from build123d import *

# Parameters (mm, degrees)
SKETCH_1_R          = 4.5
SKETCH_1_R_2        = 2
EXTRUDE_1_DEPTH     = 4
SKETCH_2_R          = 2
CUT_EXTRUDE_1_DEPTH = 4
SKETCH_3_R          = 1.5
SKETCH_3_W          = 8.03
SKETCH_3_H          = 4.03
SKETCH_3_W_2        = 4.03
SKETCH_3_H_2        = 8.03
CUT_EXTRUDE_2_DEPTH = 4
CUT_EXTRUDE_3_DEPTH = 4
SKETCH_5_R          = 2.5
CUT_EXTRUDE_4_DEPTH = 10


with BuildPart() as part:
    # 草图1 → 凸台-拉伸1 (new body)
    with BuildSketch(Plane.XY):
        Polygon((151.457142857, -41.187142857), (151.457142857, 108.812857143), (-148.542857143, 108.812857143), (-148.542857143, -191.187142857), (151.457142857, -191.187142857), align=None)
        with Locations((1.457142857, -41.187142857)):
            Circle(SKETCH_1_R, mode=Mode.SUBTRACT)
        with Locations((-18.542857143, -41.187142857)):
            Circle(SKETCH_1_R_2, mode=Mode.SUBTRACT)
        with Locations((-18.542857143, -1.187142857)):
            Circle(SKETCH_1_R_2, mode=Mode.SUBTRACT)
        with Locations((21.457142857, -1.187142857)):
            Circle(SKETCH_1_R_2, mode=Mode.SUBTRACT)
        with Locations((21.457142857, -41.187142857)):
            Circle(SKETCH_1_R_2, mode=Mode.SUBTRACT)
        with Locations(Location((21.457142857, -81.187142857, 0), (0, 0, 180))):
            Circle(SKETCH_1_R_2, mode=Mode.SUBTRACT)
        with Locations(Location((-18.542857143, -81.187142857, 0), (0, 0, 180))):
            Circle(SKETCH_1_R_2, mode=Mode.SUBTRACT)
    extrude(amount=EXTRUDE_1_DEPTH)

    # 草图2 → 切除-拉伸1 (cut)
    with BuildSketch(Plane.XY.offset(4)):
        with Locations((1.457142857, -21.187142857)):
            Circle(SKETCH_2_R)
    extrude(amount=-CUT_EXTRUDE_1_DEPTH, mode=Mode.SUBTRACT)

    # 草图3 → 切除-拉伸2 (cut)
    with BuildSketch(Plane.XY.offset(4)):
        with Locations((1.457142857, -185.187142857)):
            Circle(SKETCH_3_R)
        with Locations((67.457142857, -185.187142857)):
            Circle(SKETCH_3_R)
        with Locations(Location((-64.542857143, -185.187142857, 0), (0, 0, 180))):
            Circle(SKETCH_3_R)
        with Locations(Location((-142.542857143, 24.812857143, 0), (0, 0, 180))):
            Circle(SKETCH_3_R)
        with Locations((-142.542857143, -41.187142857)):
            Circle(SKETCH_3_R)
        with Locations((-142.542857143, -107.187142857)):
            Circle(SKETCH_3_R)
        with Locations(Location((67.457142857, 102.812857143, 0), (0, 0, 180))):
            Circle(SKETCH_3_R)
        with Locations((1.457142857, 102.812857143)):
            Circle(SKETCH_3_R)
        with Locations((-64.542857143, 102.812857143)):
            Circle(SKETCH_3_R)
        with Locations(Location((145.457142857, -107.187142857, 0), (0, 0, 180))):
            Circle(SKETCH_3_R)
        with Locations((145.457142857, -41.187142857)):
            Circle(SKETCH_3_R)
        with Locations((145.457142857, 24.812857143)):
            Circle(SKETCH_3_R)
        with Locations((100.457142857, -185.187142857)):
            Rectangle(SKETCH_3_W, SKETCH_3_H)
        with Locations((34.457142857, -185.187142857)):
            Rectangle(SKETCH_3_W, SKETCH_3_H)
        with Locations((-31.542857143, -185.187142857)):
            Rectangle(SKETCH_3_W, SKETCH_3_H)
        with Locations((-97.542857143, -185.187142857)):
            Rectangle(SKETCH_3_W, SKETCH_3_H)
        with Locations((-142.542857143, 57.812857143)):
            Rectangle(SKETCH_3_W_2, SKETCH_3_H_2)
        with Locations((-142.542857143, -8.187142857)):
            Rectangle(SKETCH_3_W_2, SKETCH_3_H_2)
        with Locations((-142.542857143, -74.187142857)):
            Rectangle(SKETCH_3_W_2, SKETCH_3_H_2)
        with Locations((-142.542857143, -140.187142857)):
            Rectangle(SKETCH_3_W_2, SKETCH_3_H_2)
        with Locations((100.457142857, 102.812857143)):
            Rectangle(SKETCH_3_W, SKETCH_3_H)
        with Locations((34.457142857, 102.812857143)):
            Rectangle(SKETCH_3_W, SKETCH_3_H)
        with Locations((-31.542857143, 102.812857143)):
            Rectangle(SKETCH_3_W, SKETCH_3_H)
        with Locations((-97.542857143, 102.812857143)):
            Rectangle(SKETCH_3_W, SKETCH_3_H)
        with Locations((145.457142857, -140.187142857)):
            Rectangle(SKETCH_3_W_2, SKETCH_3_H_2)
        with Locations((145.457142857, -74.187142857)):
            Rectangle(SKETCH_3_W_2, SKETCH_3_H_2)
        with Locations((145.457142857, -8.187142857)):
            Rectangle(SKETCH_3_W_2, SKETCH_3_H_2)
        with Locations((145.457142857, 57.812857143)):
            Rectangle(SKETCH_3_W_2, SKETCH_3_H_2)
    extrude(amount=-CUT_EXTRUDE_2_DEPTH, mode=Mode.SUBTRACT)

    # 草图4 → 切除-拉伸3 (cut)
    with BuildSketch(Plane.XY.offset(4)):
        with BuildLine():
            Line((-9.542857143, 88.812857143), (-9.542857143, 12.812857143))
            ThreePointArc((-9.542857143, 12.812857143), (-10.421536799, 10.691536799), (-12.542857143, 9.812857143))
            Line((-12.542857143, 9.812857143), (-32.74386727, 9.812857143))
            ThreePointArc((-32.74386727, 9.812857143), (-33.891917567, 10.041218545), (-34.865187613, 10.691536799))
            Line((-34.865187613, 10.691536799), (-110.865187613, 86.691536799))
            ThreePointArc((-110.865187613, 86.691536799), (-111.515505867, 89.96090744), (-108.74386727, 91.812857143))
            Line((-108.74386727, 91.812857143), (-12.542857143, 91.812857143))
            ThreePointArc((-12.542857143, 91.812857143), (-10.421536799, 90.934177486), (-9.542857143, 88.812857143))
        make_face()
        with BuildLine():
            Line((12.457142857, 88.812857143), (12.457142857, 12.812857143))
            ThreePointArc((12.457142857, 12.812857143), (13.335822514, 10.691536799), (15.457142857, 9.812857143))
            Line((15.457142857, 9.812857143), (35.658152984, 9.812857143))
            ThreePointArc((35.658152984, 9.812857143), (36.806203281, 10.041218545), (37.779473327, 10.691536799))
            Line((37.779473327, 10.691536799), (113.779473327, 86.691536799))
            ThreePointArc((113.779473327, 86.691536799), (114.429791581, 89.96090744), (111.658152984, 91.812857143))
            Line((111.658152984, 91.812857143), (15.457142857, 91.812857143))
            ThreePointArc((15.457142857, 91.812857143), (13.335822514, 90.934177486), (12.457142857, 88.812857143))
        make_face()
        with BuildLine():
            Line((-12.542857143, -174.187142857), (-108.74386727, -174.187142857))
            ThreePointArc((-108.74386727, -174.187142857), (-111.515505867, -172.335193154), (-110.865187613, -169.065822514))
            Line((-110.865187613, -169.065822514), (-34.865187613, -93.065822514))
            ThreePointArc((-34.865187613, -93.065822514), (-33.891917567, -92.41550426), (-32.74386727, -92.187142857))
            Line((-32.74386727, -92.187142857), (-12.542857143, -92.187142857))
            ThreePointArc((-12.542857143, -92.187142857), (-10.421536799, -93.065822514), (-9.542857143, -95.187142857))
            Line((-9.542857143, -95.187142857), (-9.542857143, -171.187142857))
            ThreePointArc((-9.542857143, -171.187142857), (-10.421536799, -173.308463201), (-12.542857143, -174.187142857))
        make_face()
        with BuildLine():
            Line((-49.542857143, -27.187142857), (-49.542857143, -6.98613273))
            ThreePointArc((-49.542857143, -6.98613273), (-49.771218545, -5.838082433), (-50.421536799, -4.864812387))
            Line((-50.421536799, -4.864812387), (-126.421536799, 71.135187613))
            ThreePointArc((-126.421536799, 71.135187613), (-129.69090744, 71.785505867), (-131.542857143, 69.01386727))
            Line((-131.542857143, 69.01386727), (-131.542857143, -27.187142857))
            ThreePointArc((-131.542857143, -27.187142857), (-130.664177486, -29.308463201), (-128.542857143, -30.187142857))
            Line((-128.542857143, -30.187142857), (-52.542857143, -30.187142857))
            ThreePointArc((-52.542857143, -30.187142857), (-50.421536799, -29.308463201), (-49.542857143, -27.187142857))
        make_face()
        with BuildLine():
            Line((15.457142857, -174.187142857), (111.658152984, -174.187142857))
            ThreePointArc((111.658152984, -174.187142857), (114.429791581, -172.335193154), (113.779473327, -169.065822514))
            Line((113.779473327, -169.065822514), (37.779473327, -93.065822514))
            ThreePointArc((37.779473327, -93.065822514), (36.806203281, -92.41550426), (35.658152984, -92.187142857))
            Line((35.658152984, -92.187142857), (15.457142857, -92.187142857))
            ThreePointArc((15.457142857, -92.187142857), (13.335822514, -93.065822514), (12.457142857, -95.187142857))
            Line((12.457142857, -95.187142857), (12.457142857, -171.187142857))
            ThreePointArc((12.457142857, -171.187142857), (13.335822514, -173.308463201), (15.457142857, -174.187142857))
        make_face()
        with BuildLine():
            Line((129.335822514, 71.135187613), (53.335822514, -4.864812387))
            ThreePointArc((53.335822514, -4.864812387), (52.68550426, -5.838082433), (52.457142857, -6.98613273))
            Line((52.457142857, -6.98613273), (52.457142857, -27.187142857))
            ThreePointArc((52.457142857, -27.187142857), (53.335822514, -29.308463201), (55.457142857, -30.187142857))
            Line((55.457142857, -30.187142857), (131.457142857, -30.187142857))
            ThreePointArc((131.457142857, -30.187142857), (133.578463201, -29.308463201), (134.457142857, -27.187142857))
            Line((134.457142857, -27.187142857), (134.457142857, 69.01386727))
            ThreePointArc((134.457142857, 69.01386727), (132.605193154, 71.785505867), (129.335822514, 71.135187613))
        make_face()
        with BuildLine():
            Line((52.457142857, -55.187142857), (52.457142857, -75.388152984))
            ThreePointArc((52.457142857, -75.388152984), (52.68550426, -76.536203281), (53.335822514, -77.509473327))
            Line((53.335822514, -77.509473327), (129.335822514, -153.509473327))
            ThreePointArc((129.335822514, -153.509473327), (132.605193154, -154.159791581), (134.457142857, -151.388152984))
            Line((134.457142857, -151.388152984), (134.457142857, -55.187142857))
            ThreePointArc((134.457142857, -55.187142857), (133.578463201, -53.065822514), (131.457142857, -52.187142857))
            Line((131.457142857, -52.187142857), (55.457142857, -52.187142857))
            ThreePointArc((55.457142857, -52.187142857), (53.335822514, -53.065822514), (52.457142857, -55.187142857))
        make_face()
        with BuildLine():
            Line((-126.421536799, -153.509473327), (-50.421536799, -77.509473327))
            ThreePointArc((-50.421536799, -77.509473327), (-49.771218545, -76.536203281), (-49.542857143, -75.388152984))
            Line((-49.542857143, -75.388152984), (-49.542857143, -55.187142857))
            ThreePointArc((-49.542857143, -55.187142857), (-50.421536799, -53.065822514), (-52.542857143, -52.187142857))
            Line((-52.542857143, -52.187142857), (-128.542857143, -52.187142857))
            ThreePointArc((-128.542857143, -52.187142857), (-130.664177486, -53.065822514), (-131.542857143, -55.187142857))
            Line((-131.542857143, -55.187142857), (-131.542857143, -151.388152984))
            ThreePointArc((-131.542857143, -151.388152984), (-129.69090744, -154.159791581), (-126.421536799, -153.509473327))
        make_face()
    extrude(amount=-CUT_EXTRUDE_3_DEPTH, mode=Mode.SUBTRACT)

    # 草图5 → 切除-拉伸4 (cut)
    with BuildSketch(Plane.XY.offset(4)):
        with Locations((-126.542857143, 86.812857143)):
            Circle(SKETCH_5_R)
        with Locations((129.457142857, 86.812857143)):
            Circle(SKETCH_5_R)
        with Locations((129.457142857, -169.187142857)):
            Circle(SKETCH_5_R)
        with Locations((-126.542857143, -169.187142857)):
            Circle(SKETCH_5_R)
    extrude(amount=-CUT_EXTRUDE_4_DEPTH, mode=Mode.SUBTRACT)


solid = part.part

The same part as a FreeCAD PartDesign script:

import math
import FreeCAD as App
import Part
import Sketcher

doc = App.newDocument("Part")
params = doc.addObject("Spreadsheet::Sheet", "Params")
for row, (alias, value) in enumerate([
    ("sketch1_diameter", "4 mm"),
    ("sketch1_diameter2", "9 mm"),
    ("sketch1_width", "300 mm"),
    ("pad1_length", "4 mm"),
    ("sketch2_diameter", "4 mm"),
    ("pocket1_length", "4 mm"),
    ("sketch3_diameter", "3 mm"),
    ("sketch3_width", "8.03 mm"),
    ("sketch3_width2", "4.03 mm"),
    ("pocket2_length", "4 mm"),
    ("sketch4_radius", "3 mm"),
    ("sketch4_width", "76 mm"),
    ("pocket3_length", "4 mm"),
    ("sketch5_diameter", "5 mm"),
    ("pocket4_length", "10 mm"),
], start=1):
    params.set(f"A{row}", alias)
    params.set(f"B{row}", "=" + value)
    params.setAlias(f"B{row}", alias)

body = doc.addObject("PartDesign::Body", "Body")

# Sketch on XY plane
sketch1 = body.newObject("Sketcher::SketchObject", "Sketch")
sketch1.AttachmentSupport = (doc.getObject("XY_Plane"), [""])
sketch1.MapMode = "FlatFace"
sketch1.addGeometry([
    Part.LineSegment(App.Vector(151.5, 108.8, 0), App.Vector(-148.5, 108.8, 0)),  # 0
    Part.LineSegment(App.Vector(-148.5, 108.8, 0), App.Vector(-148.5, -191.2, 0)),  # 1
    Part.LineSegment(App.Vector(-148.5, -191.2, 0), App.Vector(151.5, -191.2, 0)),  # 2
    Part.LineSegment(App.Vector(151.5, -191.2, 0), App.Vector(151.5, 108.8, 0)),  # 3
    Part.Circle(App.Vector(-18.5, -81.2, 0), App.Vector(0, 0, 1), 2),  # 4
    Part.Circle(App.Vector(21.5, -81.2, 0), App.Vector(0, 0, 1), 2),  # 5
    Part.Circle(App.Vector(-18.5, -41.2, 0), App.Vector(0, 0, 1), 2),  # 6
    Part.Circle(App.Vector(1.5, -41.2, 0), App.Vector(0, 0, 1), 4.5),  # 7
    Part.Circle(App.Vector(-18.5, -1.2, 0), App.Vector(0, 0, 1), 2),  # 8
    Part.Circle(App.Vector(21.5, -41.2, 0), App.Vector(0, 0, 1), 2),  # 9
    Part.Circle(App.Vector(21.5, -1.2, 0), App.Vector(0, 0, 1), 2),  # 10
], False)
sketch1.addConstraint([
    Sketcher.Constraint("Coincident", 0, 2, 1, 1),
    Sketcher.Constraint("Coincident", 1, 2, 2, 1),
    Sketcher.Constraint("Coincident", 2, 2, 3, 1),
    Sketcher.Constraint("Coincident", 3, 2, 0, 1),
    Sketcher.Constraint("Horizontal", 0),
    Sketcher.Constraint("Vertical", 1),
    Sketcher.Constraint("Horizontal", 2),
    Sketcher.Constraint("Vertical", 3),
    Sketcher.Constraint("Equal", 4, 5),
    Sketcher.Constraint("Equal", 5, 6),
    Sketcher.Constraint("Equal", 6, 8),
    Sketcher.Constraint("Equal", 8, 9),
    Sketcher.Constraint("Equal", 9, 10),
    Sketcher.Constraint("Horizontal", 4, 3, 5, 3),
    Sketcher.Constraint("Horizontal", 6, 3, 7, 3),
    Sketcher.Constraint("Horizontal", 7, 3, 9, 3),
    Sketcher.Constraint("Horizontal", 8, 3, 10, 3),
    Sketcher.Constraint("Vertical", 4, 3, 6, 3),
    Sketcher.Constraint("Vertical", 6, 3, 8, 3),
    Sketcher.Constraint("Vertical", 5, 3, 9, 3),
    Sketcher.Constraint("Vertical", 9, 3, 10, 3),
    Sketcher.Constraint("Equal", 2, 1),
    Sketcher.Constraint("Diameter", 4, 4.0),
    Sketcher.Constraint("Diameter", 7, 9.0),
    Sketcher.Constraint("DistanceX", 0, 2, 0, 1, 300.0),
    Sketcher.Constraint("DistanceX", 4, 3, 5, 3, 40.0),
    Sketcher.Constraint("DistanceY", 4, 3, 6, 3, 40.0),
    Sketcher.Constraint("DistanceX", 6, 3, 7, 3, 20.0),
    Sketcher.Constraint("DistanceY", 6, 3, 8, 3, 40.0),
    Sketcher.Constraint("DistanceX", 0, 2, 8, 3, 130.0),
    Sketcher.Constraint("DistanceY", 8, 3, 0, 2, 110.0),
    Sketcher.Constraint("DistanceX", 4, 3, -1, 1, 18.542857),
    Sketcher.Constraint("DistanceY", 4, 3, -1, 1, 81.187143),
])
sketch1.setExpression("Constraints[22]", "Params.sketch1_diameter")
sketch1.setExpression("Constraints[23]", "Params.sketch1_diameter2")
sketch1.setExpression("Constraints[24]", "Params.sketch1_width")
pad1 = body.newObject("PartDesign::Pad", "Pad")
pad1.Profile = sketch1
pad1.setExpression("Length", "Params.pad1_length")

# Sketch on XY plane
sketch2 = body.newObject("Sketcher::SketchObject", "Sketch001")
sketch2.AttachmentSupport = (doc.getObject("XY_Plane"), [""])
sketch2.MapMode = "FlatFace"
sketch2.AttachmentOffset = App.Placement(App.Vector(0, 0, 4), App.Rotation())
sketch2.addGeometry(Part.Circle(App.Vector(1.5, -21.2, 0), App.Vector(0, 0, 1), 2), False)
sketch2.addConstraint([
    Sketcher.Constraint("Diameter", 0, 4.0),
    Sketcher.Constraint("DistanceX", -1, 1, 0, 3, 1.457143),
    Sketcher.Constraint("DistanceY", 0, 3, -1, 1, 21.187143),
])
sketch2.setExpression("Constraints[0]", "Params.sketch2_diameter")
pocket1 = body.newObject("PartDesign::Pocket", "Pocket")
pocket1.Profile = sketch2
pocket1.setExpression("Length", "Params.pocket1_length")

# Sketch on XY plane
sketch3 = body.newObject("Sketcher::SketchObject", "Sketch002")
sketch3.AttachmentSupport = (doc.getObject("XY_Plane"), [""])
sketch3.MapMode = "FlatFace"
sketch3.AttachmentOffset = App.Placement(App.Vector(0, 0, 4), App.Rotation())
sketch3.addGeometry([
    Part.Circle(App.Vector(1.5, -185.2, 0), App.Vector(0, 0, 1), 1.5),  # 0
    Part.Circle(App.Vector(67.5, -185.2, 0), App.Vector(0, 0, 1), 1.5),  # 1
    Part.Circle(App.Vector(-64.5, -185.2, 0), App.Vector(0, 0, 1), 1.5),  # 2
    Part.Circle(App.Vector(-142.5, 24.8, 0), App.Vector(0, 0, 1), 1.5),  # 3
    Part.Circle(App.Vector(-142.5, -41.2, 0), App.Vector(0, 0, 1), 1.5),  # 4
    Part.Circle(App.Vector(-142.5, -107.2, 0), App.Vector(0, 0, 1), 1.5),  # 5
    Part.Circle(App.Vector(67.5, 102.8, 0), App.Vector(0, 0, 1), 1.5),  # 6
    Part.Circle(App.Vector(1.5, 102.8, 0), App.Vector(0, 0, 1), 1.5),  # 7
    Part.Circle(App.Vector(-64.5, 102.8, 0), App.Vector(0, 0, 1), 1.5),  # 8
    Part.Circle(App.Vector(145.5, -107.2, 0), App.Vector(0, 0, 1), 1.5),  # 9
    Part.Circle(App.Vector(145.5, -41.2, 0), App.Vector(0, 0, 1), 1.5),  # 10
    Part.Circle(App.Vector(145.5, 24.8, 0), App.Vector(0, 0, 1), 1.5),  # 11
    Part.LineSegment(App.Vector(96.4, -183.2, 0), App.Vector(96.4, -187.2, 0)),  # 12
    Part.LineSegment(App.Vector(96.4, -187.2, 0), App.Vector(104.5, -187.2, 0)),  # 13
    Part.LineSegment(App.Vector(104.5, -187.2, 0), App.Vector(104.5, -183.2, 0)),  # 14
    Part.LineSegment(App.Vector(104.5, -183.2, 0), App.Vector(96.4, -183.2, 0)),  # 15
    Part.LineSegment(App.Vector(30.4, -183.2, 0), App.Vector(30.4, -187.2, 0)),  # 16
    Part.LineSegment(App.Vector(30.4, -187.2, 0), App.Vector(38.5, -187.2, 0)),  # 17
    Part.LineSegment(App.Vector(38.5, -187.2, 0), App.Vector(38.5, -183.2, 0)),  # 18
    Part.LineSegment(App.Vector(38.5, -183.2, 0), App.Vector(30.4, -183.2, 0)),  # 19
    Part.LineSegment(App.Vector(-35.6, -183.2, 0), App.Vector(-35.6, -187.2, 0)),  # 20
    Part.LineSegment(App.Vector(-35.6, -187.2, 0), App.Vector(-27.5, -187.2, 0)),  # 21
    Part.LineSegment(App.Vector(-27.5, -187.2, 0), App.Vector(-27.5, -183.2, 0)),  # 22
    Part.LineSegment(App.Vector(-27.5, -183.2, 0), App.Vector(-35.6, -183.2, 0)),  # 23
    Part.LineSegment(App.Vector(-101.6, -183.2, 0), App.Vector(-101.6, -187.2, 0)),  # 24
    Part.LineSegment(App.Vector(-101.6, -187.2, 0), App.Vector(-93.5, -187.2, 0)),  # 25
    Part.LineSegment(App.Vector(-93.5, -187.2, 0), App.Vector(-93.5, -183.2, 0)),  # 26
    Part.LineSegment(App.Vector(-93.5, -183.2, 0), App.Vector(-101.6, -183.2, 0)),  # 27
    Part.LineSegment(App.Vector(-144.6, 61.8, 0), App.Vector(-144.6, 53.8, 0)),  # 28
    Part.LineSegment(App.Vector(-144.6, 53.8, 0), App.Vector(-140.5, 53.8, 0)),  # 29
    Part.LineSegment(App.Vector(-140.5, 53.8, 0), App.Vector(-140.5, 61.8, 0)),  # 30
    Part.LineSegment(App.Vector(-140.5, 61.8, 0), App.Vector(-144.6, 61.8, 0)),  # 31
    Part.LineSegment(App.Vector(-144.6, -4.2, 0), App.Vector(-144.6, -12.2, 0)),  # 32
    Part.LineSegment(App.Vector(-144.6, -12.2, 0), App.Vector(-140.5, -12.2, 0)),  # 33
    Part.LineSegment(App.Vector(-140.5, -12.2, 0), App.Vector(-140.5, -4.2, 0)),  # 34
    Part.LineSegment(App.Vector(-140.5, -4.2, 0), App.Vector(-144.6, -4.2, 0)),  # 35
    Part.LineSegment(App.Vector(-144.6, -70.2, 0), App.Vector(-144.6, -78.2, 0)),  # 36
    Part.LineSegment(App.Vector(-144.6, -78.2, 0), App.Vector(-140.5, -78.2, 0)),  # 37
    Part.LineSegment(App.Vector(-140.5, -78.2, 0), App.Vector(-140.5, -70.2, 0)),  # 38
    Part.LineSegment(App.Vector(-140.5, -70.2, 0), App.Vector(-144.6, -70.2, 0)),  # 39
    Part.LineSegment(App.Vector(-144.6, -136.2, 0), App.Vector(-144.6, -144.2, 0)),  # 40
    Part.LineSegment(App.Vector(-144.6, -144.2, 0), App.Vector(-140.5, -144.2, 0)),  # 41
    Part.LineSegment(App.Vector(-140.5, -144.2, 0), App.Vector(-140.5, -136.2, 0)),  # 42
    Part.LineSegment(App.Vector(-140.5, -136.2, 0), App.Vector(-144.6, -136.2, 0)),  # 43
    Part.LineSegment(App.Vector(96.4, 104.8, 0), App.Vector(96.4, 100.8, 0)),  # 44
    Part.LineSegment(App.Vector(96.4, 100.8, 0), App.Vector(104.5, 100.8, 0)),  # 45
    Part.LineSegment(App.Vector(104.5, 100.8, 0), App.Vector(104.5, 104.8, 0)),  # 46
    Part.LineSegment(App.Vector(104.5, 104.8, 0), App.Vector(96.4, 104.8, 0)),  # 47
    Part.LineSegment(App.Vector(30.4, 104.8, 0), App.Vector(30.4, 100.8, 0)),  # 48
    Part.LineSegment(App.Vector(30.4, 100.8, 0), App.Vector(38.5, 100.8, 0)),  # 49
    Part.LineSegment(App.Vector(38.5, 100.8, 0), App.Vector(38.5, 104.8, 0)),  # 50
    Part.LineSegment(App.Vector(38.5, 104.8, 0), App.Vector(30.4, 104.8, 0)),  # 51
    Part.LineSegment(App.Vector(-35.6, 104.8, 0), App.Vector(-35.6, 100.8, 0)),  # 52
    Part.LineSegment(App.Vector(-35.6, 100.8, 0), App.Vector(-27.5, 100.8, 0)),  # 53
    Part.LineSegment(App.Vector(-27.5, 100.8, 0), App.Vector(-27.5, 104.8, 0)),  # 54
    Part.LineSegment(App.Vector(-27.5, 104.8, 0), App.Vector(-35.6, 104.8, 0)),  # 55
    Part.LineSegment(App.Vector(-101.6, 104.8, 0), App.Vector(-101.6, 100.8, 0)),  # 56
    Part.LineSegment(App.Vector(-101.6, 100.8, 0), App.Vector(-93.5, 100.8, 0)),  # 57
    Part.LineSegment(App.Vector(-93.5, 100.8, 0), App.Vector(-93.5, 104.8, 0)),  # 58
    Part.LineSegment(App.Vector(-93.5, 104.8, 0), App.Vector(-101.6, 104.8, 0)),  # 59
    Part.LineSegment(App.Vector(143.4, -136.2, 0), App.Vector(143.4, -144.2, 0)),  # 60
    Part.LineSegment(App.Vector(143.4, -144.2, 0), App.Vector(147.5, -144.2, 0)),  # 61
    Part.LineSegment(App.Vector(147.5, -144.2, 0), App.Vector(147.5, -136.2, 0)),  # 62
    Part.LineSegment(App.Vector(147.5, -136.2, 0), App.Vector(143.4, -136.2, 0)),  # 63
    Part.LineSegment(App.Vector(143.4, -70.2, 0), App.Vector(143.4, -78.2, 0)),  # 64
    Part.LineSegment(App.Vector(143.4, -78.2, 0), App.Vector(147.5, -78.2, 0)),  # 65
    Part.LineSegment(App.Vector(147.5, -78.2, 0), App.Vector(147.5, -70.2, 0)),  # 66
    Part.LineSegment(App.Vector(147.5, -70.2, 0), App.Vector(143.4, -70.2, 0)),  # 67
    Part.LineSegment(App.Vector(143.4, -4.2, 0), App.Vector(143.4, -12.2, 0)),  # 68
    Part.LineSegment(App.Vector(143.4, -12.2, 0), App.Vector(147.5, -12.2, 0)),  # 69
    Part.LineSegment(App.Vector(147.5, -12.2, 0), App.Vector(147.5, -4.2, 0)),  # 70
    Part.LineSegment(App.Vector(147.5, -4.2, 0), App.Vector(143.4, -4.2, 0)),  # 71
    Part.LineSegment(App.Vector(143.4, 61.8, 0), App.Vector(143.4, 53.8, 0)),  # 72
    Part.LineSegment(App.Vector(143.4, 53.8, 0), App.Vector(147.5, 53.8, 0)),  # 73
    Part.LineSegment(App.Vector(147.5, 53.8, 0), App.Vector(147.5, 61.8, 0)),  # 74
    Part.LineSegment(App.Vector(147.5, 61.8, 0), App.Vector(143.4, 61.8, 0)),  # 75
], False)
sketch3.addConstraint([
    Sketcher.Constraint("Coincident", 12, 2, 13, 1),
    Sketcher.Constraint("Coincident", 13, 2, 14, 1),
    Sketcher.Constraint("Coincident", 14, 2, 15, 1),
    Sketcher.Constraint("Coincident", 15, 2, 12, 1),
    Sketcher.Constraint("Coincident", 16, 2, 17, 1),
    Sketcher.Constraint("Coincident", 17, 2, 18, 1),
    Sketcher.Constraint("Coincident", 18, 2, 19, 1),
    Sketcher.Constraint("Coincident", 19, 2, 16, 1),
    Sketcher.Constraint("Coincident", 20, 2, 21, 1),
    Sketcher.Constraint("Coincident", 21, 2, 22, 1),
    Sketcher.Constraint("Coincident", 22, 2, 23, 1),
    Sketcher.Constraint("Coincident", 23, 2, 20, 1),
    Sketcher.Constraint("Coincident", 24, 2, 25, 1),
    Sketcher.Constraint("Coincident", 25, 2, 26, 1),
    Sketcher.Constraint("Coincident", 26, 2, 27, 1),
    Sketcher.Constraint("Coincident", 27, 2, 24, 1),
    Sketcher.Constraint("Coincident", 28, 2, 29, 1),
    Sketcher.Constraint("Coincident", 29, 2, 30, 1),
    Sketcher.Constraint("Coincident", 30, 2, 31, 1),
    Sketcher.Constraint("Coincident", 31, 2, 28, 1),
    Sketcher.Constraint("Coincident", 32, 2, 33, 1),
    Sketcher.Constraint("Coincident", 33, 2, 34, 1),
    Sketcher.Constraint("Coincident", 34, 2, 35, 1),
    Sketcher.Constraint("Coincident", 35, 2, 32, 1),
    Sketcher.Constraint("Coincident", 36, 2, 37, 1),
    Sketcher.Constraint("Coincident", 37, 2, 38, 1),
    Sketcher.Constraint("Coincident", 38, 2, 39, 1),
    Sketcher.Constraint("Coincident", 39, 2, 36, 1),
    Sketcher.Constraint("Coincident", 40, 2, 41, 1),
    Sketcher.Constraint("Coincident", 41, 2, 42, 1),
    Sketcher.Constraint("Coincident", 42, 2, 43, 1),
    Sketcher.Constraint("Coincident", 43, 2, 40, 1),
    Sketcher.Constraint("Coincident", 44, 2, 45, 1),
    Sketcher.Constraint("Coincident", 45, 2, 46, 1),
    Sketcher.Constraint("Coincident", 46, 2, 47, 1),
    Sketcher.Constraint("Coincident", 47, 2, 44, 1),
    Sketcher.Constraint("Coincident", 48, 2, 49, 1),
    Sketcher.Constraint("Coincident", 49, 2, 50, 1),
    Sketcher.Constraint("Coincident", 50, 2, 51, 1),
    Sketcher.Constraint("Coincident", 51, 2, 48, 1),
    Sketcher.Constraint("Coincident", 52, 2, 53, 1),
    Sketcher.Constraint("Coincident", 53, 2, 54, 1),
    Sketcher.Constraint("Coincident", 54, 2, 55, 1),
    Sketcher.Constraint("Coincident", 55, 2, 52, 1),
    Sketcher.Constraint("Coincident", 56, 2, 57, 1),
    Sketcher.Constraint("Coincident", 57, 2, 58, 1),
    Sketcher.Constraint("Coincident", 58, 2, 59, 1),
    Sketcher.Constraint("Coincident", 59, 2, 56, 1),
    Sketcher.Constraint("Coincident", 60, 2, 61, 1),
    Sketcher.Constraint("Coincident", 61, 2, 62, 1),
    Sketcher.Constraint("Coincident", 62, 2, 63, 1),
    Sketcher.Constraint("Coincident", 63, 2, 60, 1),
    Sketcher.Constraint("Coincident", 64, 2, 65, 1),
    Sketcher.Constraint("Coincident", 65, 2, 66, 1),
    Sketcher.Constraint("Coincident", 66, 2, 67, 1),
    Sketcher.Constraint("Coincident", 67, 2, 64, 1),
    Sketcher.Constraint("Coincident", 68, 2, 69, 1),
    Sketcher.Constraint("Coincident", 69, 2, 70, 1),
    Sketcher.Constraint("Coincident", 70, 2, 71, 1),
    Sketcher.Constraint("Coincident", 71, 2, 68, 1),
    Sketcher.Constraint("Coincident", 72, 2, 73, 1),
    Sketcher.Constraint("Coincident", 73, 2, 74, 1),
    Sketcher.Constraint("Coincident", 74, 2, 75, 1),
    Sketcher.Constraint("Coincident", 75, 2, 72, 1),
    Sketcher.Constraint("Vertical", 12),
    Sketcher.Constraint("Horizontal", 13),
    Sketcher.Constraint("Vertical", 14),
    Sketcher.Constraint("Horizontal", 15),
    Sketcher.Constraint("Vertical", 16),
    Sketcher.Constraint("Horizontal", 17),
    Sketcher.Constraint("Vertical", 18),
    Sketcher.Constraint("Horizontal", 19),
    Sketcher.Constraint("Vertical", 20),
    Sketcher.Constraint("Horizontal", 21),
    Sketcher.Constraint("Vertical", 22),
    Sketcher.Constraint("Horizontal", 23),
    Sketcher.Constraint("Vertical", 24),
    Sketcher.Constraint("Horizontal", 25),
    Sketcher.Constraint("Vertical", 26),
    Sketcher.Constraint("Horizontal", 27),
    Sketcher.Constraint("Vertical", 28),
    Sketcher.Constraint("Horizontal", 29),
    Sketcher.Constraint("Vertical", 30),
    Sketcher.Constraint("Horizontal", 31),
    Sketcher.Constraint("Vertical", 32),
    Sketcher.Constraint("Horizontal", 33),
    Sketcher.Constraint("Vertical", 34),
    Sketcher.Constraint("Horizontal", 35),
    Sketcher.Constraint("Vertical", 36),
    Sketcher.Constraint("Horizontal", 37),
    Sketcher.Constraint("Vertical", 38),
    Sketcher.Constraint("Horizontal", 39),
    Sketcher.Constraint("Vertical", 40),
    Sketcher.Constraint("Horizontal", 41),
    Sketcher.Constraint("Vertical", 42),
    Sketcher.Constraint("Horizontal", 43),
    Sketcher.Constraint("Vertical", 44),
    Sketcher.Constraint("Horizontal", 45),
    Sketcher.Constraint("Vertical", 46),
    Sketcher.Constraint("Horizontal", 47),
    Sketcher.Constraint("Vertical", 48),
    Sketcher.Constraint("Horizontal", 49),
    Sketcher.Constraint("Vertical", 50),
    Sketcher.Constraint("Horizontal", 51),
    Sketcher.Constraint("Vertical", 52),
    Sketcher.Constraint("Horizontal", 53),
    Sketcher.Constraint("Vertical", 54),
    Sketcher.Constraint("Horizontal", 55),
    Sketcher.Constraint("Vertical", 56),
    Sketcher.Constraint("Horizontal", 57),
    Sketcher.Constraint("Vertical", 58),
    Sketcher.Constraint("Horizontal", 59),
    Sketcher.Constraint("Vertical", 60),
    Sketcher.Constraint("Horizontal", 61),
    Sketcher.Constraint("Vertical", 62),
    Sketcher.Constraint("Horizontal", 63),
    Sketcher.Constraint("Vertical", 64),
    Sketcher.Constraint("Horizontal", 65),
    Sketcher.Constraint("Vertical", 66),
    Sketcher.Constraint("Horizontal", 67),
    Sketcher.Constraint("Vertical", 68),
    Sketcher.Constraint("Horizontal", 69),
    Sketcher.Constraint("Vertical", 70),
    Sketcher.Constraint("Horizontal", 71),
    Sketcher.Constraint("Vertical", 72),
    Sketcher.Constraint("Horizontal", 73),
    Sketcher.Constraint("Vertical", 74),
    Sketcher.Constraint("Horizontal", 75),
    Sketcher.Constraint("Equal", 0, 1),
    Sketcher.Constraint("Equal", 1, 2),
    Sketcher.Constraint("Equal", 2, 3),
    Sketcher.Constraint("Equal", 3, 4),
    Sketcher.Constraint("Equal", 4, 5),
    Sketcher.Constraint("Equal", 5, 6),
    Sketcher.Constraint("Equal", 6, 7),
    Sketcher.Constraint("Equal", 7, 8),
    Sketcher.Constraint("Equal", 8, 9),
    Sketcher.Constraint("Equal", 9, 10),
    Sketcher.Constraint("Equal", 10, 11),
    Sketcher.Constraint("Horizontal", 0, 3, 1, 3),
    Sketcher.Constraint("Horizontal", 1, 3, 2, 3),
    Sketcher.Constraint("Horizontal", 6, 3, 7, 3),
    Sketcher.Constraint("Horizontal", 7, 3, 8, 3),
    Sketcher.Constraint("Horizontal", 5, 3, 9, 3),
    Sketcher.Constraint("Horizontal", 4, 3, 10, 3),
    Sketcher.Constraint("Horizontal", 3, 3, 11, 3),
    Sketcher.Constraint("Horizontal", 13, 2, 16, 2),
    Sketcher.Constraint("Horizontal", 15, 2, 18, 2),
    Sketcher.Constraint("Horizontal", 17, 2, 20, 2),
    Sketcher.Constraint("Horizontal", 19, 2, 22, 2),
    Sketcher.Constraint("Horizontal", 21, 2, 24, 2),
    Sketcher.Constraint("Horizontal", 23, 2, 26, 2),
    Sketcher.Constraint("Horizontal", 45, 2, 48, 2),
    Sketcher.Constraint("Horizontal", 47, 2, 50, 2),
    Sketcher.Constraint("Horizontal", 49, 2, 52, 2),
    Sketcher.Constraint("Horizontal", 51, 2, 54, 2),
    Sketcher.Constraint("Horizontal", 53, 2, 56, 2),
    Sketcher.Constraint("Horizontal", 55, 2, 58, 2),
    Sketcher.Constraint("Horizontal", 41, 2, 60, 2),
    Sketcher.Constraint("Horizontal", 43, 2, 62, 2),
    Sketcher.Constraint("Horizontal", 37, 2, 64, 2),
    Sketcher.Constraint("Horizontal", 39, 2, 66, 2),
    Sketcher.Constraint("Horizontal", 33, 2, 68, 2),
    Sketcher.Constraint("Horizontal", 35, 2, 70, 2),
    Sketcher.Constraint("Horizontal", 29, 2, 72, 2),
    Sketcher.Constraint("Horizontal", 31, 2, 74, 2),
    Sketcher.Constraint("Vertical", 3, 3, 4, 3),
    Sketcher.Constraint("Vertical", 4, 3, 5, 3),
    Sketcher.Constraint("Vertical", 1, 3, 6, 3),
    Sketcher.Constraint("Vertical", 0, 3, 7, 3),
    Sketcher.Constraint("Vertical", 2, 3, 8, 3),
    Sketcher.Constraint("Vertical", 9, 3, 10, 3),
    Sketcher.Constraint("Vertical", 10, 3, 11, 3),
    Sketcher.Constraint("Vertical", 31, 2, 32, 2),
    Sketcher.Constraint("Vertical", 30, 2, 33, 2),
    Sketcher.Constraint("Vertical", 35, 2, 36, 2),
    Sketcher.Constraint("Vertical", 34, 2, 37, 2),
    Sketcher.Constraint("Vertical", 39, 2, 40, 2),
    Sketcher.Constraint("Vertical", 38, 2, 41, 2),
    Sketcher.Constraint("Vertical", 15, 2, 44, 2),
    Sketcher.Constraint("Vertical", 14, 2, 45, 2),
    Sketcher.Constraint("Vertical", 19, 2, 48, 2),
    Sketcher.Constraint("Vertical", 18, 2, 49, 2),
    Sketcher.Constraint("Vertical", 23, 2, 52, 2),
    Sketcher.Constraint("Vertical", 22, 2, 53, 2),
    Sketcher.Constraint("Vertical", 27, 2, 56, 2),
    Sketcher.Constraint("Vertical", 26, 2, 57, 2),
    Sketcher.Constraint("Vertical", 63, 2, 64, 2),
    Sketcher.Constraint("Vertical", 62, 2, 65, 2),
    Sketcher.Constraint("Vertical", 67, 2, 68, 2),
    Sketcher.Constraint("Vertical", 66, 2, 69, 2),
    Sketcher.Constraint("Vertical", 71, 2, 72, 2),
    Sketcher.Constraint("Vertical", 70, 2, 73, 2),
    Sketcher.Constraint("Equal", 15, 17),
    Sketcher.Constraint("Equal", 19, 21),
    Sketcher.Constraint("Equal", 23, 25),
    Sketcher.Constraint("Equal", 43, 61),
    Sketcher.Constraint("Equal", 75, 12),
    Sketcher.Constraint("Equal", 59, 28),
    Sketcher.Constraint("Equal", 30, 32),
    Sketcher.Constraint("Equal", 34, 36),
    Sketcher.Constraint("Equal", 38, 40),
    Sketcher.Constraint("Equal", 26, 44),
    Sketcher.Constraint("Diameter", 0, 3.0),
    Sketcher.Constraint("DistanceX", 13, 1, 13, 2, 8.03),
    Sketcher.Constraint("DistanceX", 29, 1, 29, 2, 4.03),
    Sketcher.Constraint("DistanceX", -1, 1, 0, 3, 1.457143),
    Sketcher.Constraint("DistanceY", 0, 3, -1, 1, 185.187143),
    Sketcher.Constraint("DistanceX", -1, 1, 1, 3, 67.457143),
    Sketcher.Constraint("DistanceX", 2, 3, -1, 1, 64.542857),
    Sketcher.Constraint("DistanceX", 3, 3, -1, 1, 142.542857),
    Sketcher.Constraint("DistanceY", -1, 1, 3, 3, 24.812857),
    Sketcher.Constraint("DistanceY", 4, 3, -1, 1, 41.187143),
    Sketcher.Constraint("DistanceY", 5, 3, -1, 1, 107.187143),
    Sketcher.Constraint("DistanceY", -1, 1, 6, 3, 102.812857),
    Sketcher.Constraint("DistanceX", -1, 1, 9, 3, 145.457143),
    Sketcher.Constraint("DistanceX", -1, 1, 12, 2, 96.442143),
    Sketcher.Constraint("DistanceY", 12, 2, -1, 1, 187.202143),
    Sketcher.Constraint("DistanceX", -1, 1, 16, 2, 30.442143),
    Sketcher.Constraint("DistanceX", 20, 2, -1, 1, 35.557857),
    Sketcher.Constraint("DistanceX", 24, 2, -1, 1, 101.557857),
    Sketcher.Constraint("DistanceX", 28, 2, -1, 1, 144.557857),
    Sketcher.Constraint("DistanceY", -1, 1, 28, 2, 53.797857),
    Sketcher.Constraint("DistanceY", 32, 2, -1, 1, 12.202143),
    Sketcher.Constraint("DistanceY", 36, 2, -1, 1, 78.202143),
    Sketcher.Constraint("DistanceY", 40, 2, -1, 1, 144.202143),
    Sketcher.Constraint("DistanceY", -1, 1, 44, 2, 100.797857),
    Sketcher.Constraint("DistanceX", -1, 1, 60, 2, 143.442143),
])
sketch3.setExpression("Constraints[203]", "Params.sketch3_diameter")
sketch3.setExpression("Constraints[204]", "Params.sketch3_width")
sketch3.setExpression("Constraints[205]", "Params.sketch3_width2")
pocket2 = body.newObject("PartDesign::Pocket", "Pocket001")
pocket2.Profile = sketch3
pocket2.setExpression("Length", "Params.pocket2_length")

# Sketch on XY plane
sketch4 = body.newObject("Sketcher::SketchObject", "Sketch003")
sketch4.AttachmentSupport = (doc.getObject("XY_Plane"), [""])
sketch4.MapMode = "FlatFace"
sketch4.AttachmentOffset = App.Placement(App.Vector(0, 0, 4), App.Rotation())
sketch4.addGeometry([
    Part.LineSegment(App.Vector(-9.5, 12.8, 0), App.Vector(-9.5, 88.8, 0)),  # 0
    Part.ArcOfCircle(Part.Circle(App.Vector(-12.5, 88.8, 0), App.Vector(0, 0, 1), 3), math.radians(0), math.radians(90)),  # 1
    Part.LineSegment(App.Vector(-12.5, 91.8, 0), App.Vector(-108.7, 91.8, 0)),  # 2
    Part.ArcOfCircle(Part.Circle(App.Vector(-108.7, 88.8, 0), App.Vector(0, 0, 1), 3), math.radians(90), math.radians(225)),  # 3
    Part.LineSegment(App.Vector(-110.9, 86.7, 0), App.Vector(-34.9, 10.7, 0)),  # 4
    Part.ArcOfCircle(Part.Circle(App.Vector(-32.7, 12.8, 0), App.Vector(0, 0, 1), 3), math.radians(-135), math.radians(-90)),  # 5
    Part.LineSegment(App.Vector(-32.7, 9.8, 0), App.Vector(-12.5, 9.8, 0)),  # 6
    Part.ArcOfCircle(Part.Circle(App.Vector(-12.5, 12.8, 0), App.Vector(0, 0, 1), 3), math.radians(-90), math.radians(0)),  # 7
    Part.LineSegment(App.Vector(12.5, 88.8, 0), App.Vector(12.5, 12.8, 0)),  # 8
    Part.ArcOfCircle(Part.Circle(App.Vector(15.5, 12.8, 0), App.Vector(0, 0, 1), 3), math.radians(180), math.radians(270)),  # 9
    Part.LineSegment(App.Vector(15.5, 9.8, 0), App.Vector(35.7, 9.8, 0)),  # 10
    Part.ArcOfCircle(Part.Circle(App.Vector(35.7, 12.8, 0), App.Vector(0, 0, 1), 3), math.radians(-90), math.radians(-45)),  # 11
    Part.LineSegment(App.Vector(37.8, 10.7, 0), App.Vector(113.8, 86.7, 0)),  # 12
    Part.ArcOfCircle(Part.Circle(App.Vector(111.7, 88.8, 0), App.Vector(0, 0, 1), 3), math.radians(-45), math.radians(90)),  # 13
    Part.LineSegment(App.Vector(111.7, 91.8, 0), App.Vector(15.5, 91.8, 0)),  # 14
    Part.ArcOfCircle(Part.Circle(App.Vector(15.5, 88.8, 0), App.Vector(0, 0, 1), 3), math.radians(90), math.radians(180)),  # 15
    Part.LineSegment(App.Vector(-108.7, -174.2, 0), App.Vector(-12.5, -174.2, 0)),  # 16
    Part.ArcOfCircle(Part.Circle(App.Vector(-12.5, -171.2, 0), App.Vector(0, 0, 1), 3), math.radians(-90), math.radians(0)),  # 17
    Part.LineSegment(App.Vector(-9.5, -171.2, 0), App.Vector(-9.5, -95.2, 0)),  # 18
    Part.ArcOfCircle(Part.Circle(App.Vector(-12.5, -95.2, 0), App.Vector(0, 0, 1), 3), math.radians(0), math.radians(90)),  # 19
    Part.LineSegment(App.Vector(-12.5, -92.2, 0), App.Vector(-32.7, -92.2, 0)),  # 20
    Part.ArcOfCircle(Part.Circle(App.Vector(-32.7, -95.2, 0), App.Vector(0, 0, 1), 3), math.radians(90), math.radians(135)),  # 21
    Part.LineSegment(App.Vector(-34.9, -93.1, 0), App.Vector(-110.9, -169.1, 0)),  # 22
    Part.ArcOfCircle(Part.Circle(App.Vector(-108.7, -171.2, 0), App.Vector(0, 0, 1), 3), math.radians(135), math.radians(270)),  # 23
    Part.LineSegment(App.Vector(-49.5, -27.2, 0), App.Vector(-49.5, -7, 0)),  # 24
    Part.ArcOfCircle(Part.Circle(App.Vector(-52.5, -7, 0), App.Vector(0, 0, 1), 3), math.radians(0), math.radians(45)),  # 25
    Part.LineSegment(App.Vector(-50.4, -4.9, 0), App.Vector(-126.4, 71.1, 0)),  # 26
    Part.ArcOfCircle(Part.Circle(App.Vector(-128.5, 69, 0), App.Vector(0, 0, 1), 3), math.radians(45), math.radians(180)),  # 27
    Part.LineSegment(App.Vector(-131.5, 69, 0), App.Vector(-131.5, -27.2, 0)),  # 28
    Part.ArcOfCircle(Part.Circle(App.Vector(-128.5, -27.2, 0), App.Vector(0, 0, 1), 3), math.radians(180), math.radians(270)),  # 29
    Part.LineSegment(App.Vector(-128.5, -30.2, 0), App.Vector(-52.5, -30.2, 0)),  # 30
    Part.ArcOfCircle(Part.Circle(App.Vector(-52.5, -27.2, 0), App.Vector(0, 0, 1), 3), math.radians(-90), math.radians(0)),  # 31
    Part.LineSegment(App.Vector(15.5, -174.2, 0), App.Vector(111.7, -174.2, 0)),  # 32
    Part.ArcOfCircle(Part.Circle(App.Vector(111.7, -171.2, 0), App.Vector(0, 0, 1), 3), math.radians(-90), math.radians(45)),  # 33
    Part.LineSegment(App.Vector(113.8, -169.1, 0), App.Vector(37.8, -93.1, 0)),  # 34
    Part.ArcOfCircle(Part.Circle(App.Vector(35.7, -95.2, 0), App.Vector(0, 0, 1), 3), math.radians(45), math.radians(90)),  # 35
    Part.LineSegment(App.Vector(35.7, -92.2, 0), App.Vector(15.5, -92.2, 0)),  # 36
    Part.ArcOfCircle(Part.Circle(App.Vector(15.5, -95.2, 0), App.Vector(0, 0, 1), 3), math.radians(90), math.radians(180)),  # 37
    Part.LineSegment(App.Vector(12.5, -95.2, 0), App.Vector(12.5, -171.2, 0)),  # 38
    Part.ArcOfCircle(Part.Circle(App.Vector(15.5, -171.2, 0), App.Vector(0, 0, 1), 3), math.radians(180), math.radians(270)),  # 39
    Part.LineSegment(App.Vector(129.3, 71.1, 0), App.Vector(53.3, -4.9, 0)),  # 40
    Part.ArcOfCircle(Part.Circle(App.Vector(55.5, -7, 0), App.Vector(0, 0, 1), 3), math.radians(135), math.radians(180)),  # 41
    Part.LineSegment(App.Vector(52.5, -7, 0), App.Vector(52.5, -27.2, 0)),  # 42
    Part.ArcOfCircle(Part.Circle(App.Vector(55.5, -27.2, 0), App.Vector(0, 0, 1), 3), math.radians(180), math.radians(270)),  # 43
    Part.LineSegment(App.Vector(55.5, -30.2, 0), App.Vector(131.5, -30.2, 0)),  # 44
    Part.ArcOfCircle(Part.Circle(App.Vector(131.5, -27.2, 0), App.Vector(0, 0, 1), 3), math.radians(-90), math.radians(0)),  # 45
    Part.LineSegment(App.Vector(134.5, -27.2, 0), App.Vector(134.5, 69, 0)),  # 46
    Part.ArcOfCircle(Part.Circle(App.Vector(131.5, 69, 0), App.Vector(0, 0, 1), 3), math.radians(0), math.radians(135)),  # 47
    Part.LineSegment(App.Vector(52.5, -55.2, 0), App.Vector(52.5, -75.4, 0)),  # 48
    Part.ArcOfCircle(Part.Circle(App.Vector(55.5, -75.4, 0), App.Vector(0, 0, 1), 3), math.radians(-180), math.radians(-135)),  # 49
    Part.LineSegment(App.Vector(53.3, -77.5, 0), App.Vector(129.3, -153.5, 0)),  # 50
    Part.ArcOfCircle(Part.Circle(App.Vector(131.5, -151.4, 0), App.Vector(0, 0, 1), 3), math.radians(-135), math.radians(0)),  # 51
    Part.LineSegment(App.Vector(134.5, -151.4, 0), App.Vector(134.5, -55.2, 0)),  # 52
    Part.ArcOfCircle(Part.Circle(App.Vector(131.5, -55.2, 0), App.Vector(0, 0, 1), 3), math.radians(0), math.radians(90)),  # 53
    Part.LineSegment(App.Vector(131.5, -52.2, 0), App.Vector(55.5, -52.2, 0)),  # 54
    Part.ArcOfCircle(Part.Circle(App.Vector(55.5, -55.2, 0), App.Vector(0, 0, 1), 3), math.radians(90), math.radians(180)),  # 55
    Part.LineSegment(App.Vector(-126.4, -153.5, 0), App.Vector(-50.4, -77.5, 0)),  # 56
    Part.ArcOfCircle(Part.Circle(App.Vector(-52.5, -75.4, 0), App.Vector(0, 0, 1), 3), math.radians(-45), math.radians(0)),  # 57
    Part.LineSegment(App.Vector(-49.5, -75.4, 0), App.Vector(-49.5, -55.2, 0)),  # 58
    Part.ArcOfCircle(Part.Circle(App.Vector(-52.5, -55.2, 0), App.Vector(0, 0, 1), 3), math.radians(0), math.radians(90)),  # 59
    Part.LineSegment(App.Vector(-52.5, -52.2, 0), App.Vector(-128.5, -52.2, 0)),  # 60
    Part.ArcOfCircle(Part.Circle(App.Vector(-128.5, -55.2, 0), App.Vector(0, 0, 1), 3), math.radians(90), math.radians(180)),  # 61
    Part.LineSegment(App.Vector(-131.5, -55.2, 0), App.Vector(-131.5, -151.4, 0)),  # 62
    Part.ArcOfCircle(Part.Circle(App.Vector(-128.5, -151.4, 0), App.Vector(0, 0, 1), 3), math.radians(-180), math.radians(-45)),  # 63
], False)
sketch4.addConstraint([
    Sketcher.Constraint("Tangent", 0, 2, 1, 1),
    Sketcher.Constraint("Tangent", 1, 2, 2, 1),
    Sketcher.Constraint("Tangent", 2, 2, 3, 1),
    Sketcher.Constraint("Tangent", 3, 2, 4, 1),
    Sketcher.Constraint("Tangent", 4, 2, 5, 1),
    Sketcher.Constraint("Tangent", 5, 2, 6, 1),
    Sketcher.Constraint("Tangent", 6, 2, 7, 1),
    Sketcher.Constraint("Tangent", 7, 2, 0, 1),
    Sketcher.Constraint("Tangent", 8, 2, 9, 1),
    Sketcher.Constraint("Tangent", 9, 2, 10, 1),
    Sketcher.Constraint("Tangent", 10, 2, 11, 1),
    Sketcher.Constraint("Tangent", 11, 2, 12, 1),
    Sketcher.Constraint("Tangent", 12, 2, 13, 1),
    Sketcher.Constraint("Tangent", 13, 2, 14, 1),
    Sketcher.Constraint("Tangent", 14, 2, 15, 1),
    Sketcher.Constraint("Tangent", 15, 2, 8, 1),
    Sketcher.Constraint("Tangent", 16, 2, 17, 1),
    Sketcher.Constraint("Tangent", 17, 2, 18, 1),
    Sketcher.Constraint("Tangent", 18, 2, 19, 1),
    Sketcher.Constraint("Tangent", 19, 2, 20, 1),
    Sketcher.Constraint("Tangent", 20, 2, 21, 1),
    Sketcher.Constraint("Tangent", 21, 2, 22, 1),
    Sketcher.Constraint("Tangent", 22, 2, 23, 1),
    Sketcher.Constraint("Tangent", 23, 2, 16, 1),
    Sketcher.Constraint("Tangent", 24, 2, 25, 1),
    Sketcher.Constraint("Tangent", 25, 2, 26, 1),
    Sketcher.Constraint("Tangent", 26, 2, 27, 1),
    Sketcher.Constraint("Tangent", 27, 2, 28, 1),
    Sketcher.Constraint("Tangent", 28, 2, 29, 1),
    Sketcher.Constraint("Tangent", 29, 2, 30, 1),
    Sketcher.Constraint("Tangent", 30, 2, 31, 1),
    Sketcher.Constraint("Tangent", 31, 2, 24, 1),
    Sketcher.Constraint("Tangent", 32, 2, 33, 1),
    Sketcher.Constraint("Tangent", 33, 2, 34, 1),
    Sketcher.Constraint("Tangent", 34, 2, 35, 1),
    Sketcher.Constraint("Tangent", 35, 2, 36, 1),
    Sketcher.Constraint("Tangent", 36, 2, 37, 1),
    Sketcher.Constraint("Tangent", 37, 2, 38, 1),
    Sketcher.Constraint("Tangent", 38, 2, 39, 1),
    Sketcher.Constraint("Tangent", 39, 2, 32, 1),
    Sketcher.Constraint("Tangent", 40, 2, 41, 1),
    Sketcher.Constraint("Tangent", 41, 2, 42, 1),
    Sketcher.Constraint("Tangent", 42, 2, 43, 1),
    Sketcher.Constraint("Tangent", 43, 2, 44, 1),
    Sketcher.Constraint("Tangent", 44, 2, 45, 1),
    Sketcher.Constraint("Tangent", 45, 2, 46, 1),
    Sketcher.Constraint("Tangent", 46, 2, 47, 1),
    Sketcher.Constraint("Tangent", 47, 2, 40, 1),
    Sketcher.Constraint("Tangent", 48, 2, 49, 1),
    Sketcher.Constraint("Tangent", 49, 2, 50, 1),
    Sketcher.Constraint("Tangent", 50, 2, 51, 1),
    Sketcher.Constraint("Tangent", 51, 2, 52, 1),
    Sketcher.Constraint("Tangent", 52, 2, 53, 1),
    Sketcher.Constraint("Tangent", 53, 2, 54, 1),
    Sketcher.Constraint("Tangent", 54, 2, 55, 1),
    Sketcher.Constraint("Tangent", 55, 2, 48, 1),
    Sketcher.Constraint("Tangent", 56, 2, 57, 1),
    Sketcher.Constraint("Tangent", 57, 2, 58, 1),
    Sketcher.Constraint("Tangent", 58, 2, 59, 1),
    Sketcher.Constraint("Tangent", 59, 2, 60, 1),
    Sketcher.Constraint("Tangent", 60, 2, 61, 1),
    Sketcher.Constraint("Tangent", 61, 2, 62, 1),
    Sketcher.Constraint("Tangent", 62, 2, 63, 1),
    Sketcher.Constraint("Tangent", 63, 2, 56, 1),
    Sketcher.Constraint("Vertical", 0),
    Sketcher.Constraint("Horizontal", 2),
    Sketcher.Constraint("Horizontal", 6),
    Sketcher.Constraint("Vertical", 8),
    Sketcher.Constraint("Horizontal", 10),
    Sketcher.Constraint("Horizontal", 14),
    Sketcher.Constraint("Horizontal", 16),
    Sketcher.Constraint("Vertical", 18),
    Sketcher.Constraint("Horizontal", 20),
    Sketcher.Constraint("Vertical", 24),
    Sketcher.Constraint("Vertical", 28),
    Sketcher.Constraint("Horizontal", 30),
    Sketcher.Constraint("Horizontal", 32),
    Sketcher.Constraint("Horizontal", 36),
    Sketcher.Constraint("Vertical", 38),
    Sketcher.Constraint("Vertical", 42),
    Sketcher.Constraint("Horizontal", 44),
    Sketcher.Constraint("Vertical", 46),
    Sketcher.Constraint("Vertical", 48),
    Sketcher.Constraint("Vertical", 52),
    Sketcher.Constraint("Horizontal", 54),
    Sketcher.Constraint("Vertical", 58),
    Sketcher.Constraint("Horizontal", 60),
    Sketcher.Constraint("Vertical", 62),
    Sketcher.Constraint("Equal", 1, 3),
    Sketcher.Constraint("Equal", 3, 5),
    Sketcher.Constraint("Equal", 5, 7),
    Sketcher.Constraint("Equal", 7, 9),
    Sketcher.Constraint("Equal", 9, 11),
    Sketcher.Constraint("Equal", 11, 13),
    Sketcher.Constraint("Equal", 13, 15),
    Sketcher.Constraint("Equal", 15, 17),
    Sketcher.Constraint("Equal", 17, 19),
    Sketcher.Constraint("Equal", 19, 21),
    Sketcher.Constraint("Equal", 21, 23),
    Sketcher.Constraint("Equal", 23, 25),
    Sketcher.Constraint("Equal", 25, 27),
    Sketcher.Constraint("Equal", 27, 29),
    Sketcher.Constraint("Equal", 29, 31),
    Sketcher.Constraint("Equal", 31, 33),
    Sketcher.Constraint("Equal", 33, 35),
    Sketcher.Constraint("Equal", 35, 37),
    Sketcher.Constraint("Equal", 37, 39),
    Sketcher.Constraint("Equal", 39, 41),
    Sketcher.Constraint("Equal", 41, 43),
    Sketcher.Constraint("Equal", 43, 45),
    Sketcher.Constraint("Equal", 45, 47),
    Sketcher.Constraint("Equal", 47, 49),
    Sketcher.Constraint("Equal", 49, 51),
    Sketcher.Constraint("Equal", 51, 53),
    Sketcher.Constraint("Equal", 53, 55),
    Sketcher.Constraint("Equal", 55, 57),
    Sketcher.Constraint("Equal", 57, 59),
    Sketcher.Constraint("Equal", 59, 61),
    Sketcher.Constraint("Equal", 61, 63),
    Sketcher.Constraint("Perpendicular", 4, 12),
    Sketcher.Constraint("Parallel", 12, 22),
    Sketcher.Constraint("Perpendicular", 22, 26),
    Sketcher.Constraint("Parallel", 26, 34),
    Sketcher.Constraint("Perpendicular", 34, 40),
    Sketcher.Constraint("Perpendicular", 40, 50),
    Sketcher.Constraint("Perpendicular", 50, 56),
    Sketcher.Constraint("Horizontal", 7, 3, 9, 3),
    Sketcher.Constraint("Horizontal", 3, 3, 13, 3),
    Sketcher.Constraint("Horizontal", 23, 3, 33, 3),
    Sketcher.Constraint("Horizontal", 21, 3, 35, 3),
    Sketcher.Constraint("Horizontal", 25, 3, 41, 3),
    Sketcher.Constraint("Horizontal", 31, 3, 43, 3),
    Sketcher.Constraint("Horizontal", 27, 3, 47, 3),
    Sketcher.Constraint("Horizontal", 49, 3, 57, 3),
    Sketcher.Constraint("Horizontal", 55, 3, 59, 3),
    Sketcher.Constraint("Horizontal", 51, 3, 63, 3),
    Sketcher.Constraint("Horizontal", 4, 2, 11, 2),
    Sketcher.Constraint("Vertical", 7, 3, 17, 3),
    Sketcher.Constraint("Vertical", 5, 3, 21, 3),
    Sketcher.Constraint("Vertical", 3, 3, 23, 3),
    Sketcher.Constraint("Vertical", 13, 3, 33, 3),
    Sketcher.Constraint("Vertical", 15, 3, 37, 3),
    Sketcher.Constraint("Vertical", 43, 3, 49, 3),
    Sketcher.Constraint("Vertical", 47, 3, 51, 3),
    Sketcher.Constraint("Vertical", 31, 3, 57, 3),
    Sketcher.Constraint("Equal", 6, 10),
    Sketcher.Constraint("Equal", 60, 0),
    Sketcher.Constraint("Equal", 36, 24),
    Sketcher.Constraint("Equal", 42, 48),
    Sketcher.Constraint("Radius", 1, 3.0),
    Sketcher.Constraint("DistanceX", 30, 1, 30, 2, 76.0),
    Sketcher.Constraint("DistanceX", 2, 2, 2, 1, 96.20101),
    Sketcher.Constraint("DistanceX", 1, 3, -1, 1, 12.542857),
    Sketcher.Constraint("DistanceY", -1, 1, 1, 3, 88.812857),
    Sketcher.Constraint("DistanceX", -1, 1, 9, 3, 15.457143),
    Sketcher.Constraint("DistanceY", 17, 3, -1, 1, 171.187143),
    Sketcher.Constraint("DistanceX", 25, 3, -1, 1, 52.542857),
    Sketcher.Constraint("DistanceY", 25, 3, -1, 1, 6.986133),
    Sketcher.Constraint("DistanceX", -1, 1, 41, 3, 55.457143),
    Sketcher.Constraint("DistanceY", 49, 3, -1, 1, 75.388153),
])
sketch4.setExpression("Constraints[149]", "Params.sketch4_radius")
sketch4.setExpression("Constraints[150]", "Params.sketch4_width")
pocket3 = body.newObject("PartDesign::Pocket", "Pocket002")
pocket3.Profile = sketch4
pocket3.setExpression("Length", "Params.pocket3_length")

# Sketch on XY plane
sketch5 = body.newObject("Sketcher::SketchObject", "Sketch004")
sketch5.AttachmentSupport = (doc.getObject("XY_Plane"), [""])
sketch5.MapMode = "FlatFace"
sketch5.AttachmentOffset = App.Placement(App.Vector(0, 0, 4), App.Rotation())
sketch5.addGeometry([
    Part.Circle(App.Vector(-126.5, 86.8, 0), App.Vector(0, 0, 1), 2.5),
    Part.Circle(App.Vector(129.5, 86.8, 0), App.Vector(0, 0, 1), 2.5),
    Part.Circle(App.Vector(129.5, -169.2, 0), App.Vector(0, 0, 1), 2.5),
    Part.Circle(App.Vector(-126.5, -169.2, 0), App.Vector(0, 0, 1), 2.5),
], False)
sketch5.addConstraint([
    Sketcher.Constraint("Equal", 0, 1),
    Sketcher.Constraint("Equal", 1, 2),
    Sketcher.Constraint("Equal", 2, 3),
    Sketcher.Constraint("Horizontal", 0, 3, 1, 3),
    Sketcher.Constraint("Horizontal", 2, 3, 3, 3),
    Sketcher.Constraint("Vertical", 1, 3, 2, 3),
    Sketcher.Constraint("Vertical", 0, 3, 3, 3),
    Sketcher.Constraint("Diameter", 0, 5.0),
    Sketcher.Constraint("DistanceX", 0, 3, 1, 3, 256.0),
    Sketcher.Constraint("DistanceY", 2, 3, 1, 3, 256.0),
    Sketcher.Constraint("DistanceX", 0, 3, -1, 1, 126.542857),
    Sketcher.Constraint("DistanceY", -1, 1, 0, 3, 86.812857),
])
sketch5.setExpression("Constraints[7]", "Params.sketch5_diameter")
pocket4 = body.newObject("PartDesign::Pocket", "Pocket003")
pocket4.Profile = sketch5
pocket4.setExpression("Length", "Params.pocket4_length")

doc.recompute()
